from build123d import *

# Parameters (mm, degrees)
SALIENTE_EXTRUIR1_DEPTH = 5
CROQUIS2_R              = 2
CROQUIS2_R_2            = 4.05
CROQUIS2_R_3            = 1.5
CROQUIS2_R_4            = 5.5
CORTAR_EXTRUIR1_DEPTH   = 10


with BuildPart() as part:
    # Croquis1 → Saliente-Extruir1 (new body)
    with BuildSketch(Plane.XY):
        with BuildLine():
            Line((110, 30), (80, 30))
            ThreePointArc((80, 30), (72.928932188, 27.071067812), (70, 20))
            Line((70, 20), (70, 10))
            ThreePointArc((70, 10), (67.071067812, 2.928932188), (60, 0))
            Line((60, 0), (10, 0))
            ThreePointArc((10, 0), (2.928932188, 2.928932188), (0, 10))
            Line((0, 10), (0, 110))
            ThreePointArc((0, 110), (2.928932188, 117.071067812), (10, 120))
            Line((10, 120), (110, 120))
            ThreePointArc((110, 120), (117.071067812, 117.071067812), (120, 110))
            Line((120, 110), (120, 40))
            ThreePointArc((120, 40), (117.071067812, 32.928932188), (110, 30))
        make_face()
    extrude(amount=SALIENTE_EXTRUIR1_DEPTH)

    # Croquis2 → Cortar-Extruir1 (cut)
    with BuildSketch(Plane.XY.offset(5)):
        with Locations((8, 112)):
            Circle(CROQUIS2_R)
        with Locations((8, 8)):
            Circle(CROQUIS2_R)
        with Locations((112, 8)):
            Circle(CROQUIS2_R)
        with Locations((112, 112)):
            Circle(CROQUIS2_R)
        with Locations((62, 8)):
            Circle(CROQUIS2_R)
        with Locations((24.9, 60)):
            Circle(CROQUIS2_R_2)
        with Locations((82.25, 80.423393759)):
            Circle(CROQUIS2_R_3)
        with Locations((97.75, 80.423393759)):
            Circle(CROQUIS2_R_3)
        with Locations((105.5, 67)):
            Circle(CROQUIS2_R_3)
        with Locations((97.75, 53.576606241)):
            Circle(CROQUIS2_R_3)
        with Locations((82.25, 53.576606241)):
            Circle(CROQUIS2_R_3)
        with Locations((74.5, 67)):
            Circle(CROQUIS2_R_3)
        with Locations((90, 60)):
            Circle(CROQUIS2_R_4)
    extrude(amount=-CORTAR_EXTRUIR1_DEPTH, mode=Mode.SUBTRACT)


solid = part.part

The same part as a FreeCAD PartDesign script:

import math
import FreeCAD as App
import Part
import Sketcher

V = App.Vector
Q = App.Units.Quantity

doc = App.newDocument("Part")
params = doc.addObject("Spreadsheet::Sheet", "Params")
for row, (alias, value) in enumerate([
    ("sketch1_radius", "10 mm"),
    ("sketch1_width", "30 mm"),
    ("sketch1_width2", "100 mm"),
    ("sketch1_height", "70 mm"),
    ("pad1_length", "5 mm"),
    ("sketch2_diameter", "4 mm"),
    ("sketch2_diameter2", "3 mm"),
    ("sketch2_diameter3", "11 mm"),
    ("sketch2_diameter4", "8.1 mm"),
    ("pocket1_length", "10 mm"),
], start=1):
    params.set(f"A{row}", alias)
    params.set(f"B{row}", "=" + value)
    params.setAlias(f"B{row}", alias)

body = doc.addObject("PartDesign::Body", "Body")

# Sketch on XY plane
sketch1 = body.newObject("Sketcher::SketchObject", "Sketch")
sketch1.AttachmentSupport = (doc.getObject("XY_Plane"), [""])
sketch1.MapMode = "FlatFace"
sketch1.addGeometry([
    Part.LineSegment(V(80, 30, 0), V(110, 30, 0)),  # 0
    Part.ArcOfCircle(Part.Circle(V(110, 40, 0), V(0, 0, 1), 10), math.radians(-90), math.radians(0)),  # 1
    Part.LineSegment(V(120, 40, 0), V(120, 110, 0)),  # 2
    Part.ArcOfCircle(Part.Circle(V(110, 110, 0), V(0, 0, 1), 10), math.radians(0), math.radians(90)),  # 3
    Part.LineSegment(V(110, 120, 0), V(10, 120, 0)),  # 4
    Part.ArcOfCircle(Part.Circle(V(10, 110, 0), V(0, 0, 1), 10), math.radians(90), math.radians(180)),  # 5
    Part.LineSegment(V(0, 110, 0), V(0, 10, 0)),  # 6
    Part.ArcOfCircle(Part.Circle(V(10, 10, 0), V(0, 0, 1), 10), math.radians(180), math.radians(270)),  # 7
    Part.LineSegment(V(10, 0, 0), V(60, 0, 0)),  # 8
    Part.ArcOfCircle(Part.Circle(V(60, 10, 0), V(0, 0, 1), 10), math.radians(-90), math.radians(0)),  # 9
    Part.LineSegment(V(70, 10, 0), V(70, 20, 0)),  # 10
    Part.ArcOfCircle(Part.Circle(V(80, 20, 0), V(0, 0, 1), 10), math.radians(90), math.radians(180)),  # 11
], False)
sketch1.addConstraint([
    Sketcher.Constraint("Tangent", 0, 2, 1, 1),
    Sketcher.Constraint("Tangent", 1, 2, 2, 1),
    Sketcher.Constraint("Tangent", 2, 2, 3, 1),
    Sketcher.Constraint("Tangent", 3, 2, 4, 1),
    Sketcher.Constraint("Tangent", 4, 2, 5, 1),
    Sketcher.Constraint("Tangent", 5, 2, 6, 1),
    Sketcher.Constraint("Tangent", 6, 2, 7, 1),
    Sketcher.Constraint("Tangent", 7, 2, 8, 1),
    Sketcher.Constraint("Tangent", 8, 2, 9, 1),
    Sketcher.Constraint("Tangent", 9, 2, 10, 1),
    Sketcher.Constraint("Tangent", 10, 2, 11, 2),
    Sketcher.Constraint("Tangent", 11, 1, 0, 1),
    Sketcher.Constraint("Horizontal", 0),
    Sketcher.Constraint("Vertical", 2),
    Sketcher.Constraint("Horizontal", 4),
    Sketcher.Constraint("Vertical", 6),
    Sketcher.Constraint("Horizontal", 8),
    Sketcher.Constraint("Vertical", 10),
    Sketcher.Constraint("Equal", 1, 3),
    Sketcher.Constraint("Equal", 3, 5),
    Sketcher.Constraint("Equal", 5, 7),
    Sketcher.Constraint("Equal", 7, 9),
    Sketcher.Constraint("Equal", 9, 11),
    Sketcher.Constraint("PointOnObject", 5, 2, -2),
    Sketcher.Constraint("PointOnObject", 7, 2, -1),
    Sketcher.Constraint("Equal", 4, 6),
    Sketcher.Constraint("Radius", 1, Q("10 mm")),
    Sketcher.Constraint("DistanceX", 0, 1, 0, 2, Q("30 mm")),
    Sketcher.Constraint("DistanceX", 4, 2, 4, 1, Q("100 mm")),
    Sketcher.Constraint("DistanceY", 2, 1, 2, 2, Q("70 mm")),
])
sketch1.setExpression("Constraints[26]", "Params.sketch1_radius")
sketch1.setExpression("Constraints[27]", "Params.sketch1_width")
sketch1.setExpression("Constraints[28]", "Params.sketch1_width2")
sketch1.setExpression("Constraints[29]", "Params.sketch1_height")
pad1 = body.newObject("PartDesign::Pad", "Pad")
pad1.Profile = sketch1
pad1.setExpression("Length", "Params.pad1_length")

# Sketch on XY plane
sketch2 = body.newObject("Sketcher::SketchObject", "Sketch001")
sketch2.AttachmentSupport = (doc.getObject("XY_Plane"), [""])
sketch2.MapMode = "FlatFace"
sketch2.AttachmentOffset = App.Placement(V(0, 0, 5), App.Rotation())
sketch2.addGeometry([
    Part.Circle(V(8, 112, 0), V(0, 0, 1), 2),  # 0
    Part.Circle(V(8, 8, 0), V(0, 0, 1), 2),  # 1
    Part.Circle(V(112, 8, 0), V(0, 0, 1), 2),  # 2
    Part.Circle(V(112, 112, 0), V(0, 0, 1), 2),  # 3
    Part.Circle(V(62, 8, 0), V(0, 0, 1), 2),  # 4
    Part.Circle(V(24.9, 60, 0), V(0, 0, 1), 4),  # 5
    Part.Circle(V(82.2, 80.4, 0), V(0, 0, 1), 1.5),  # 6
    Part.Circle(V(97.8, 80.4, 0), V(0, 0, 1), 1.5),  # 7
    Part.Circle(V(105.5, 67, 0), V(0, 0, 1), 1.5),  # 8
    Part.Circle(V(97.8, 53.6, 0), V(0, 0, 1), 1.5),  # 9
    Part.Circle(V(82.2, 53.6, 0), V(0, 0, 1), 1.5),  # 10
    Part.Circle(V(74.5, 67, 0), V(0, 0, 1), 1.5),  # 11
    Part.Circle(V(90, 60, 0), V(0, 0, 1), 5.5),  # 12
], False)
sketch2.addConstraint([
    Sketcher.Constraint("Equal", 0, 1),
    Sketcher.Constraint("Equal", 1, 2),
    Sketcher.Constraint("Equal", 2, 3),
    Sketcher.Constraint("Equal", 3, 4),
    Sketcher.Constraint("Equal", 6, 7),
    Sketcher.Constraint("Equal", 7, 8),
    Sketcher.Constraint("Equal", 8, 9),
    Sketcher.Constraint("Equal", 9, 10),
    Sketcher.Constraint("Equal", 10, 11),
    Sketcher.Constraint("Horizontal", 1, 3, 2, 3),
    Sketcher.Constraint("Horizontal", 0, 3, 3, 3),
    Sketcher.Constraint("Horizontal", 2, 3, 4, 3),
    Sketcher.Constraint("Horizontal", 6, 3, 7, 3),
    Sketcher.Constraint("Horizontal", 9, 3, 10, 3),
    Sketcher.Constraint("Horizontal", 8, 3, 11, 3),
    Sketcher.Constraint("Horizontal", 5, 3, 12, 3),
    Sketcher.Constraint("Vertical", 0, 3, 1, 3),
    Sketcher.Constraint("Vertical", 2, 3, 3, 3),
    Sketcher.Constraint("Vertical", 7, 3, 9, 3),
    Sketcher.Constraint("Vertical", 6, 3, 10, 3),
    Sketcher.Constraint("Diameter", 0, Q("4 mm")),
    Sketcher.Constraint("Diameter", 6, Q("3 mm")),
    Sketcher.Constraint("Diameter", 12, Q("11 mm")),
    Sketcher.Constraint("Diameter", 5, Q("8.1 mm")),
    Sketcher.Constraint("DistanceX", -1, 1, 0, 3, Q("8 mm")),
    Sketcher.Constraint("DistanceY", -1, 1, 0, 3, Q("112 mm")),
    Sketcher.Constraint("DistanceY", -1, 1, 1, 3, Q("8 mm")),
    Sketcher.Constraint("DistanceX", -1, 1, 2, 3, Q("112 mm")),
    Sketcher.Constraint("DistanceX", -1, 1, 4, 3, Q("62 mm")),
    Sketcher.Constraint("DistanceY", -1, 1, 5, 3, Q("60 mm")),
    Sketcher.Constraint("DistanceY", -1, 1, 8, 3, Q("67 mm")),
    Sketcher.Constraint("DistanceX", -1, 1, 12, 3, Q("90 mm")),
    Sketcher.Constraint("DistanceX", 11, 3, 8, 3, Q("31 mm")),
    Sketcher.Constraint("DistanceX", -1, 1, 5, 3, Q("24.9 mm")),
    Sketcher.Constraint("DistanceX", -1, 1, 8, 3, Q("105.5 mm")),
    Sketcher.Constraint("DistanceX", 6, 3, 7, 3, Q("15.5 mm")),
    Sketcher.Constraint("DistanceX", -1, 1, 6, 3, Q("82.25 mm")),
    Sketcher.Constraint("DistanceY", -1, 1, 6, 3, Q("80.423394 mm")),
    Sketcher.Constraint("DistanceY", -1, 1, 9, 3, Q("53.576606 mm")),
])
sketch2.setExpression("Constraints[20]", "Params.sketch2_diameter")
sketch2.setExpression("Constraints[21]", "Params.sketch2_diameter2")
sketch2.setExpression("Constraints[22]", "Params.sketch2_diameter3")
sketch2.setExpression("Constraints[23]", "Params.sketch2_diameter4")
pocket1 = body.newObject("PartDesign::Pocket", "Pocket")
pocket1.Profile = sketch2
pocket1.setExpression("Length", "Params.pocket1_length")

doc.recompute()
